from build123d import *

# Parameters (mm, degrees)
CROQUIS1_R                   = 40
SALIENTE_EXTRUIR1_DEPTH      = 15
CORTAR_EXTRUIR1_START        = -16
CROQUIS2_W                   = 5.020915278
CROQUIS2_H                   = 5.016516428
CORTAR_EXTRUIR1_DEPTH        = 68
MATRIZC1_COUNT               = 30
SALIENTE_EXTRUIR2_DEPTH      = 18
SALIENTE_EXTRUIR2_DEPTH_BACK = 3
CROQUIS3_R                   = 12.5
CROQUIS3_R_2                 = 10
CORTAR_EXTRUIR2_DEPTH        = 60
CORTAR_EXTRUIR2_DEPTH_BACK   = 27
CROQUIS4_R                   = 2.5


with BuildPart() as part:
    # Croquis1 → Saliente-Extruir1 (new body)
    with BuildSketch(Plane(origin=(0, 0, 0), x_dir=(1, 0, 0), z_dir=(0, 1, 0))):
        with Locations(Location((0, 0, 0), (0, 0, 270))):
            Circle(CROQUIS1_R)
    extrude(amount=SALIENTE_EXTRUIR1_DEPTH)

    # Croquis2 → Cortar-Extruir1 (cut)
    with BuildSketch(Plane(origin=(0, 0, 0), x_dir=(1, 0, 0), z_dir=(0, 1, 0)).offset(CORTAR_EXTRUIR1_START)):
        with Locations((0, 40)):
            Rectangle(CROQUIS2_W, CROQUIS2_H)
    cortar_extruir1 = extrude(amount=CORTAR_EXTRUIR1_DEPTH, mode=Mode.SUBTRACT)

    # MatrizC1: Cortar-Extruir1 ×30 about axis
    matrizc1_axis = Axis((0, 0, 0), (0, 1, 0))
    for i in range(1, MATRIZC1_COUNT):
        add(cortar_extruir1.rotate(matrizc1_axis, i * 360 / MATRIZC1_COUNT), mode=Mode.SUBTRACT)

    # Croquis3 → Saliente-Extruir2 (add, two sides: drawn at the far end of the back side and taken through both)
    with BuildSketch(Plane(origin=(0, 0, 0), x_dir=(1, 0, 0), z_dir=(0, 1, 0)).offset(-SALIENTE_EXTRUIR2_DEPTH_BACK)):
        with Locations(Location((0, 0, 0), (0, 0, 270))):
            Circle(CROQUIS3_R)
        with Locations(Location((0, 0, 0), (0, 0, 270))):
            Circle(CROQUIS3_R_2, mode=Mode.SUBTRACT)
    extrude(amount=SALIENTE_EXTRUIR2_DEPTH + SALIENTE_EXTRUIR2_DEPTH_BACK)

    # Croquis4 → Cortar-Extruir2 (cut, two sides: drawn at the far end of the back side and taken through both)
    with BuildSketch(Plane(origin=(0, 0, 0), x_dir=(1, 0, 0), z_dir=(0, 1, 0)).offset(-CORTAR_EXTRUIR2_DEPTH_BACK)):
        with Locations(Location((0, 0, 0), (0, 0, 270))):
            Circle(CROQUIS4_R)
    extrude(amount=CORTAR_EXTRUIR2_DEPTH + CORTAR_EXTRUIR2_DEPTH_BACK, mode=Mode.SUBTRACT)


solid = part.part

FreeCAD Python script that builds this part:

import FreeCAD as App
import Part
import Sketcher
Q = App.Units.Quantity


def add_polygon(sketch, points):
    """Adds a closed chain of lines whose ends are joined by coincident constraints."""
    first, n = sketch.GeometryCount, len(points)
    for a, b in zip(points, points[1:] + points[:1]):
        sketch.addGeometry(Part.LineSegment(App.Vector(*a, 0), App.Vector(*b, 0)), False)
    for i in range(n):
        sketch.addConstraint(Sketcher.Constraint("Coincident", first + i, 2, first + (i + 1) % n, 1))

doc = App.newDocument("Part")
body = doc.addObject("PartDesign::Body", "Body")

# Sketch on XZ plane
sketch1 = body.newObject("Sketcher::SketchObject", "Sketch")
sketch1.AttachmentSupport = (doc.getObject("XZ_Plane"), [""])
sketch1.MapMode = "FlatFace"
sketch1.addGeometry(Part.Circle(App.Vector(0, 0, 0), App.Vector(0, 0, 1), 40), False)
sketch1.addConstraint([
    Sketcher.Constraint("Coincident", 0, 3, -1, 1),
    Sketcher.Constraint("Diameter", 0, Q("80 mm")),
])
pad1 = body.newObject("PartDesign::Pad", "Pad")
pad1.Profile = sketch1
pad1.Length = 15
pad1.Reversed = True

# Sketch on XZ plane
sketch2 = body.newObject("Sketcher::SketchObject", "Sketch001")
sketch2.AttachmentSupport = (doc.getObject("XZ_Plane"), [""])
sketch2.MapMode = "FlatFace"
sketch2.AttachmentOffset = App.Placement(App.Vector(0, 0, 16), App.Rotation())
add_polygon(sketch2, [(-3, -43), (-3, -37), (3, -37), (3, -43)])  # lines 0-3
sketch2.addConstraint([
    Sketcher.Constraint("Vertical", 0),
    Sketcher.Constraint("Horizontal", 1),
    Sketcher.Constraint("Vertical", 2),
    Sketcher.Constraint("Horizontal", 3),
    Sketcher.Constraint("DistanceX", 1, 1, 1, 2, Q("5.020915 mm")),
    Sketcher.Constraint("DistanceY", 0, 1, 0, 2, Q("5.016516 mm")),
    Sketcher.Constraint("DistanceY", 0, 2, -1, 1, Q("37.491742 mm")),
    Sketcher.Constraint("DistanceX", 0, 2, -1, 1, Q("2.510458 mm")),
])
pocket1 = body.newObject("PartDesign::Pocket", "Pocket")
pocket1.Profile = sketch2
pocket1.Length = 68
doc.recompute()

polarpattern = body.newObject("PartDesign::PolarPattern", "PolarPattern")
polarpattern.Originals = [pocket1]
polarpattern.Axis = (doc.getObject("Y_Axis"), [""])
polarpattern.Angle = 360
polarpattern.Occurrences = 30
body.Tip = polarpattern

# Sketch on XZ plane
sketch3 = body.newObject("Sketcher::SketchObject", "Sketch002")
sketch3.AttachmentSupport = (doc.getObject("XZ_Plane"), [""])
sketch3.MapMode = "FlatFace"
sketch3.addGeometry([
    Part.Circle(App.Vector(0, 0, 0), App.Vector(0, 0, 1), 12),
    Part.Circle(App.Vector(0, 0, 0), App.Vector(0, 0, 1), 10),
], False)
sketch3.addConstraint([
    Sketcher.Constraint("Coincident", 0, 3, -1, 1),
    Sketcher.Constraint("Coincident", 1, 3, -1, 1),
    Sketcher.Constraint("Diameter", 0, Q("25 mm")),
    Sketcher.Constraint("Diameter", 1, Q("20 mm")),
])
pad2 = body.newObject("PartDesign::Pad", "Pad001")
pad2.Profile = sketch3
pad2.Type = "TwoLengths"
pad2.Length = 18
pad2.Length2 = 3
pad2.Reversed = True

# Sketch on XZ plane
sketch4 = body.newObject("Sketcher::SketchObject", "Sketch003")
sketch4.AttachmentSupport = (doc.getObject("XZ_Plane"), [""])
sketch4.MapMode = "FlatFace"
sketch4.addGeometry(Part.Circle(App.Vector(0, 0, 0), App.Vector(0, 0, 1), 2.5), False)
sketch4.addConstraint([
    Sketcher.Constraint("Coincident", 0, 3, -1, 1),
    Sketcher.Constraint("Diameter", 0, Q("5 mm")),
])
pocket2 = body.newObject("PartDesign::Pocket", "Pocket001")
pocket2.Profile = sketch4
pocket2.Type = "ThroughAll"
pocket2.Midplane = True

doc.recompute()
